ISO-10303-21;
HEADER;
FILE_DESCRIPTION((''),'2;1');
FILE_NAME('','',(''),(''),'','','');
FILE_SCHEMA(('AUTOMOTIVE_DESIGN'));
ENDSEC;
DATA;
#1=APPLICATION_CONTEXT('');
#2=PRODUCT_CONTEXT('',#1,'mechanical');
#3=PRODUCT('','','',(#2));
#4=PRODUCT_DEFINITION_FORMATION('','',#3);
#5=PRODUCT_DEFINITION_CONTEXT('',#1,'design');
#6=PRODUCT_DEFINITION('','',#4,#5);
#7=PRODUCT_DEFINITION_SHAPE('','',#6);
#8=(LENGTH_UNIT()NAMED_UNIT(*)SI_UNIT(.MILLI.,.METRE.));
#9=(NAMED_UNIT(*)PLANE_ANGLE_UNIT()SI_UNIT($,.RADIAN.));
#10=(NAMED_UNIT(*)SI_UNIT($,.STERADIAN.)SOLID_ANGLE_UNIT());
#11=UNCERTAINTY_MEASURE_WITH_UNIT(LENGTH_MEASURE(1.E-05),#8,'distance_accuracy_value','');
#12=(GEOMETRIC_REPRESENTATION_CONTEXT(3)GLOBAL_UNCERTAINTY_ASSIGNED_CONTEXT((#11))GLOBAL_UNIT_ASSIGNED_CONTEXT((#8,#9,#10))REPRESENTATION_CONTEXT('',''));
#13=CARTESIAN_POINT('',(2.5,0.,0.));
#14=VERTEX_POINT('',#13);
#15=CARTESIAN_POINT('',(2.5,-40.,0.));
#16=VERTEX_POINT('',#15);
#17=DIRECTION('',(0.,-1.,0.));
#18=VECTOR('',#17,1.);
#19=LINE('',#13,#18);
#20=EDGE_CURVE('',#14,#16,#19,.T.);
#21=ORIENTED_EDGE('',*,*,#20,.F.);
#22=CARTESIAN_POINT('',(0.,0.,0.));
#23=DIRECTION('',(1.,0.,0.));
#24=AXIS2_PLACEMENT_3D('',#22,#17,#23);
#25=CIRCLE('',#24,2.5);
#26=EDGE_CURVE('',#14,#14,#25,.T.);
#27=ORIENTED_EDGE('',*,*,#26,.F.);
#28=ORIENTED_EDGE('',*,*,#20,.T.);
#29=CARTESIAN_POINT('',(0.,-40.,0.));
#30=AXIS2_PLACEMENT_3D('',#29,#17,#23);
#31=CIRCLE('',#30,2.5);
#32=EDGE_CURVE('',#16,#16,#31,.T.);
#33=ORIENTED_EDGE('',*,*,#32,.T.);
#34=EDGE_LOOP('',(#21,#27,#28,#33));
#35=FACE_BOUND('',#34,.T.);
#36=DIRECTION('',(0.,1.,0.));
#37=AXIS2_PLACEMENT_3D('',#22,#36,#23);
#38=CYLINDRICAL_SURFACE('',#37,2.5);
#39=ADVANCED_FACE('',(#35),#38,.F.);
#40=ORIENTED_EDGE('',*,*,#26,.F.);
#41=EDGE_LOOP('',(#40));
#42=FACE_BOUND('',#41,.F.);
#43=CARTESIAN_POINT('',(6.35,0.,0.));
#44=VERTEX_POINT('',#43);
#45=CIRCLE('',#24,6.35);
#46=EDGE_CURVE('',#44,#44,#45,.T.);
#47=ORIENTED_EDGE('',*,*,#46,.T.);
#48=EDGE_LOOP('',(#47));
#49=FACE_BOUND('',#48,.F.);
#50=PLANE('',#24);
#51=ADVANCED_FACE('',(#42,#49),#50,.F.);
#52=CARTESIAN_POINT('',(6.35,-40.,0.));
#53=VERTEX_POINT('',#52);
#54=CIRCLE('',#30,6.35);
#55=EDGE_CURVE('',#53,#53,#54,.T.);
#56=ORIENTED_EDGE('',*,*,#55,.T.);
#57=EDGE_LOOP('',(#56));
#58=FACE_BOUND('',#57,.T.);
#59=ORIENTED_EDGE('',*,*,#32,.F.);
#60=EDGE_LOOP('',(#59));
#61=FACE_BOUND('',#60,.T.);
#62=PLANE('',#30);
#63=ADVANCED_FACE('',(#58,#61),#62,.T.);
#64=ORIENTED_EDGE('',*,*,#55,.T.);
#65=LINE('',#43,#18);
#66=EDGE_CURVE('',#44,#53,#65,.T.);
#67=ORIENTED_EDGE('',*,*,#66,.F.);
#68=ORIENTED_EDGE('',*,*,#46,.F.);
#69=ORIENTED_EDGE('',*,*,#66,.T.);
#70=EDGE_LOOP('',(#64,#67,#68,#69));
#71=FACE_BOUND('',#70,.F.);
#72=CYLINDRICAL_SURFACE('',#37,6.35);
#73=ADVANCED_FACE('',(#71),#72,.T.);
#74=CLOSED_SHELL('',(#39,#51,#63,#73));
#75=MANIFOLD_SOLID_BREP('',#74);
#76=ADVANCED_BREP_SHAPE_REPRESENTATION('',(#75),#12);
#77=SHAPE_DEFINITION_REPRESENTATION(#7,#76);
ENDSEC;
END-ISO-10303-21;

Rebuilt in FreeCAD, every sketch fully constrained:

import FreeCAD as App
import Part
import Sketcher
Q = App.Units.Quantity

doc = App.newDocument("Part")
body = doc.addObject("PartDesign::Body", "Body")

# Sketch on XZ plane
sketch1 = body.newObject("Sketcher::SketchObject", "Sketch")
sketch1.AttachmentSupport = (doc.getObject("XZ_Plane"), [""])
sketch1.MapMode = "FlatFace"
sketch1.addGeometry([
    Part.Circle(App.Vector(0, 0, 0), App.Vector(0, 0, 1), 6.3),
    Part.Circle(App.Vector(0, 0, 0), App.Vector(0, 0, 1), 2.5),
], False)
sketch1.addConstraint([
    Sketcher.Constraint("Coincident", 0, 3, -1, 1),
    Sketcher.Constraint("Coincident", 1, 3, -1, 1),
    Sketcher.Constraint("Diameter", 1, Q("5 mm")),
    Sketcher.Constraint("Diameter", 0, Q("12.7 mm")),
])
pad1 = body.newObject("PartDesign::Pad", "Pad")
pad1.Profile = sketch1
pad1.Length = 40

doc.recompute()
